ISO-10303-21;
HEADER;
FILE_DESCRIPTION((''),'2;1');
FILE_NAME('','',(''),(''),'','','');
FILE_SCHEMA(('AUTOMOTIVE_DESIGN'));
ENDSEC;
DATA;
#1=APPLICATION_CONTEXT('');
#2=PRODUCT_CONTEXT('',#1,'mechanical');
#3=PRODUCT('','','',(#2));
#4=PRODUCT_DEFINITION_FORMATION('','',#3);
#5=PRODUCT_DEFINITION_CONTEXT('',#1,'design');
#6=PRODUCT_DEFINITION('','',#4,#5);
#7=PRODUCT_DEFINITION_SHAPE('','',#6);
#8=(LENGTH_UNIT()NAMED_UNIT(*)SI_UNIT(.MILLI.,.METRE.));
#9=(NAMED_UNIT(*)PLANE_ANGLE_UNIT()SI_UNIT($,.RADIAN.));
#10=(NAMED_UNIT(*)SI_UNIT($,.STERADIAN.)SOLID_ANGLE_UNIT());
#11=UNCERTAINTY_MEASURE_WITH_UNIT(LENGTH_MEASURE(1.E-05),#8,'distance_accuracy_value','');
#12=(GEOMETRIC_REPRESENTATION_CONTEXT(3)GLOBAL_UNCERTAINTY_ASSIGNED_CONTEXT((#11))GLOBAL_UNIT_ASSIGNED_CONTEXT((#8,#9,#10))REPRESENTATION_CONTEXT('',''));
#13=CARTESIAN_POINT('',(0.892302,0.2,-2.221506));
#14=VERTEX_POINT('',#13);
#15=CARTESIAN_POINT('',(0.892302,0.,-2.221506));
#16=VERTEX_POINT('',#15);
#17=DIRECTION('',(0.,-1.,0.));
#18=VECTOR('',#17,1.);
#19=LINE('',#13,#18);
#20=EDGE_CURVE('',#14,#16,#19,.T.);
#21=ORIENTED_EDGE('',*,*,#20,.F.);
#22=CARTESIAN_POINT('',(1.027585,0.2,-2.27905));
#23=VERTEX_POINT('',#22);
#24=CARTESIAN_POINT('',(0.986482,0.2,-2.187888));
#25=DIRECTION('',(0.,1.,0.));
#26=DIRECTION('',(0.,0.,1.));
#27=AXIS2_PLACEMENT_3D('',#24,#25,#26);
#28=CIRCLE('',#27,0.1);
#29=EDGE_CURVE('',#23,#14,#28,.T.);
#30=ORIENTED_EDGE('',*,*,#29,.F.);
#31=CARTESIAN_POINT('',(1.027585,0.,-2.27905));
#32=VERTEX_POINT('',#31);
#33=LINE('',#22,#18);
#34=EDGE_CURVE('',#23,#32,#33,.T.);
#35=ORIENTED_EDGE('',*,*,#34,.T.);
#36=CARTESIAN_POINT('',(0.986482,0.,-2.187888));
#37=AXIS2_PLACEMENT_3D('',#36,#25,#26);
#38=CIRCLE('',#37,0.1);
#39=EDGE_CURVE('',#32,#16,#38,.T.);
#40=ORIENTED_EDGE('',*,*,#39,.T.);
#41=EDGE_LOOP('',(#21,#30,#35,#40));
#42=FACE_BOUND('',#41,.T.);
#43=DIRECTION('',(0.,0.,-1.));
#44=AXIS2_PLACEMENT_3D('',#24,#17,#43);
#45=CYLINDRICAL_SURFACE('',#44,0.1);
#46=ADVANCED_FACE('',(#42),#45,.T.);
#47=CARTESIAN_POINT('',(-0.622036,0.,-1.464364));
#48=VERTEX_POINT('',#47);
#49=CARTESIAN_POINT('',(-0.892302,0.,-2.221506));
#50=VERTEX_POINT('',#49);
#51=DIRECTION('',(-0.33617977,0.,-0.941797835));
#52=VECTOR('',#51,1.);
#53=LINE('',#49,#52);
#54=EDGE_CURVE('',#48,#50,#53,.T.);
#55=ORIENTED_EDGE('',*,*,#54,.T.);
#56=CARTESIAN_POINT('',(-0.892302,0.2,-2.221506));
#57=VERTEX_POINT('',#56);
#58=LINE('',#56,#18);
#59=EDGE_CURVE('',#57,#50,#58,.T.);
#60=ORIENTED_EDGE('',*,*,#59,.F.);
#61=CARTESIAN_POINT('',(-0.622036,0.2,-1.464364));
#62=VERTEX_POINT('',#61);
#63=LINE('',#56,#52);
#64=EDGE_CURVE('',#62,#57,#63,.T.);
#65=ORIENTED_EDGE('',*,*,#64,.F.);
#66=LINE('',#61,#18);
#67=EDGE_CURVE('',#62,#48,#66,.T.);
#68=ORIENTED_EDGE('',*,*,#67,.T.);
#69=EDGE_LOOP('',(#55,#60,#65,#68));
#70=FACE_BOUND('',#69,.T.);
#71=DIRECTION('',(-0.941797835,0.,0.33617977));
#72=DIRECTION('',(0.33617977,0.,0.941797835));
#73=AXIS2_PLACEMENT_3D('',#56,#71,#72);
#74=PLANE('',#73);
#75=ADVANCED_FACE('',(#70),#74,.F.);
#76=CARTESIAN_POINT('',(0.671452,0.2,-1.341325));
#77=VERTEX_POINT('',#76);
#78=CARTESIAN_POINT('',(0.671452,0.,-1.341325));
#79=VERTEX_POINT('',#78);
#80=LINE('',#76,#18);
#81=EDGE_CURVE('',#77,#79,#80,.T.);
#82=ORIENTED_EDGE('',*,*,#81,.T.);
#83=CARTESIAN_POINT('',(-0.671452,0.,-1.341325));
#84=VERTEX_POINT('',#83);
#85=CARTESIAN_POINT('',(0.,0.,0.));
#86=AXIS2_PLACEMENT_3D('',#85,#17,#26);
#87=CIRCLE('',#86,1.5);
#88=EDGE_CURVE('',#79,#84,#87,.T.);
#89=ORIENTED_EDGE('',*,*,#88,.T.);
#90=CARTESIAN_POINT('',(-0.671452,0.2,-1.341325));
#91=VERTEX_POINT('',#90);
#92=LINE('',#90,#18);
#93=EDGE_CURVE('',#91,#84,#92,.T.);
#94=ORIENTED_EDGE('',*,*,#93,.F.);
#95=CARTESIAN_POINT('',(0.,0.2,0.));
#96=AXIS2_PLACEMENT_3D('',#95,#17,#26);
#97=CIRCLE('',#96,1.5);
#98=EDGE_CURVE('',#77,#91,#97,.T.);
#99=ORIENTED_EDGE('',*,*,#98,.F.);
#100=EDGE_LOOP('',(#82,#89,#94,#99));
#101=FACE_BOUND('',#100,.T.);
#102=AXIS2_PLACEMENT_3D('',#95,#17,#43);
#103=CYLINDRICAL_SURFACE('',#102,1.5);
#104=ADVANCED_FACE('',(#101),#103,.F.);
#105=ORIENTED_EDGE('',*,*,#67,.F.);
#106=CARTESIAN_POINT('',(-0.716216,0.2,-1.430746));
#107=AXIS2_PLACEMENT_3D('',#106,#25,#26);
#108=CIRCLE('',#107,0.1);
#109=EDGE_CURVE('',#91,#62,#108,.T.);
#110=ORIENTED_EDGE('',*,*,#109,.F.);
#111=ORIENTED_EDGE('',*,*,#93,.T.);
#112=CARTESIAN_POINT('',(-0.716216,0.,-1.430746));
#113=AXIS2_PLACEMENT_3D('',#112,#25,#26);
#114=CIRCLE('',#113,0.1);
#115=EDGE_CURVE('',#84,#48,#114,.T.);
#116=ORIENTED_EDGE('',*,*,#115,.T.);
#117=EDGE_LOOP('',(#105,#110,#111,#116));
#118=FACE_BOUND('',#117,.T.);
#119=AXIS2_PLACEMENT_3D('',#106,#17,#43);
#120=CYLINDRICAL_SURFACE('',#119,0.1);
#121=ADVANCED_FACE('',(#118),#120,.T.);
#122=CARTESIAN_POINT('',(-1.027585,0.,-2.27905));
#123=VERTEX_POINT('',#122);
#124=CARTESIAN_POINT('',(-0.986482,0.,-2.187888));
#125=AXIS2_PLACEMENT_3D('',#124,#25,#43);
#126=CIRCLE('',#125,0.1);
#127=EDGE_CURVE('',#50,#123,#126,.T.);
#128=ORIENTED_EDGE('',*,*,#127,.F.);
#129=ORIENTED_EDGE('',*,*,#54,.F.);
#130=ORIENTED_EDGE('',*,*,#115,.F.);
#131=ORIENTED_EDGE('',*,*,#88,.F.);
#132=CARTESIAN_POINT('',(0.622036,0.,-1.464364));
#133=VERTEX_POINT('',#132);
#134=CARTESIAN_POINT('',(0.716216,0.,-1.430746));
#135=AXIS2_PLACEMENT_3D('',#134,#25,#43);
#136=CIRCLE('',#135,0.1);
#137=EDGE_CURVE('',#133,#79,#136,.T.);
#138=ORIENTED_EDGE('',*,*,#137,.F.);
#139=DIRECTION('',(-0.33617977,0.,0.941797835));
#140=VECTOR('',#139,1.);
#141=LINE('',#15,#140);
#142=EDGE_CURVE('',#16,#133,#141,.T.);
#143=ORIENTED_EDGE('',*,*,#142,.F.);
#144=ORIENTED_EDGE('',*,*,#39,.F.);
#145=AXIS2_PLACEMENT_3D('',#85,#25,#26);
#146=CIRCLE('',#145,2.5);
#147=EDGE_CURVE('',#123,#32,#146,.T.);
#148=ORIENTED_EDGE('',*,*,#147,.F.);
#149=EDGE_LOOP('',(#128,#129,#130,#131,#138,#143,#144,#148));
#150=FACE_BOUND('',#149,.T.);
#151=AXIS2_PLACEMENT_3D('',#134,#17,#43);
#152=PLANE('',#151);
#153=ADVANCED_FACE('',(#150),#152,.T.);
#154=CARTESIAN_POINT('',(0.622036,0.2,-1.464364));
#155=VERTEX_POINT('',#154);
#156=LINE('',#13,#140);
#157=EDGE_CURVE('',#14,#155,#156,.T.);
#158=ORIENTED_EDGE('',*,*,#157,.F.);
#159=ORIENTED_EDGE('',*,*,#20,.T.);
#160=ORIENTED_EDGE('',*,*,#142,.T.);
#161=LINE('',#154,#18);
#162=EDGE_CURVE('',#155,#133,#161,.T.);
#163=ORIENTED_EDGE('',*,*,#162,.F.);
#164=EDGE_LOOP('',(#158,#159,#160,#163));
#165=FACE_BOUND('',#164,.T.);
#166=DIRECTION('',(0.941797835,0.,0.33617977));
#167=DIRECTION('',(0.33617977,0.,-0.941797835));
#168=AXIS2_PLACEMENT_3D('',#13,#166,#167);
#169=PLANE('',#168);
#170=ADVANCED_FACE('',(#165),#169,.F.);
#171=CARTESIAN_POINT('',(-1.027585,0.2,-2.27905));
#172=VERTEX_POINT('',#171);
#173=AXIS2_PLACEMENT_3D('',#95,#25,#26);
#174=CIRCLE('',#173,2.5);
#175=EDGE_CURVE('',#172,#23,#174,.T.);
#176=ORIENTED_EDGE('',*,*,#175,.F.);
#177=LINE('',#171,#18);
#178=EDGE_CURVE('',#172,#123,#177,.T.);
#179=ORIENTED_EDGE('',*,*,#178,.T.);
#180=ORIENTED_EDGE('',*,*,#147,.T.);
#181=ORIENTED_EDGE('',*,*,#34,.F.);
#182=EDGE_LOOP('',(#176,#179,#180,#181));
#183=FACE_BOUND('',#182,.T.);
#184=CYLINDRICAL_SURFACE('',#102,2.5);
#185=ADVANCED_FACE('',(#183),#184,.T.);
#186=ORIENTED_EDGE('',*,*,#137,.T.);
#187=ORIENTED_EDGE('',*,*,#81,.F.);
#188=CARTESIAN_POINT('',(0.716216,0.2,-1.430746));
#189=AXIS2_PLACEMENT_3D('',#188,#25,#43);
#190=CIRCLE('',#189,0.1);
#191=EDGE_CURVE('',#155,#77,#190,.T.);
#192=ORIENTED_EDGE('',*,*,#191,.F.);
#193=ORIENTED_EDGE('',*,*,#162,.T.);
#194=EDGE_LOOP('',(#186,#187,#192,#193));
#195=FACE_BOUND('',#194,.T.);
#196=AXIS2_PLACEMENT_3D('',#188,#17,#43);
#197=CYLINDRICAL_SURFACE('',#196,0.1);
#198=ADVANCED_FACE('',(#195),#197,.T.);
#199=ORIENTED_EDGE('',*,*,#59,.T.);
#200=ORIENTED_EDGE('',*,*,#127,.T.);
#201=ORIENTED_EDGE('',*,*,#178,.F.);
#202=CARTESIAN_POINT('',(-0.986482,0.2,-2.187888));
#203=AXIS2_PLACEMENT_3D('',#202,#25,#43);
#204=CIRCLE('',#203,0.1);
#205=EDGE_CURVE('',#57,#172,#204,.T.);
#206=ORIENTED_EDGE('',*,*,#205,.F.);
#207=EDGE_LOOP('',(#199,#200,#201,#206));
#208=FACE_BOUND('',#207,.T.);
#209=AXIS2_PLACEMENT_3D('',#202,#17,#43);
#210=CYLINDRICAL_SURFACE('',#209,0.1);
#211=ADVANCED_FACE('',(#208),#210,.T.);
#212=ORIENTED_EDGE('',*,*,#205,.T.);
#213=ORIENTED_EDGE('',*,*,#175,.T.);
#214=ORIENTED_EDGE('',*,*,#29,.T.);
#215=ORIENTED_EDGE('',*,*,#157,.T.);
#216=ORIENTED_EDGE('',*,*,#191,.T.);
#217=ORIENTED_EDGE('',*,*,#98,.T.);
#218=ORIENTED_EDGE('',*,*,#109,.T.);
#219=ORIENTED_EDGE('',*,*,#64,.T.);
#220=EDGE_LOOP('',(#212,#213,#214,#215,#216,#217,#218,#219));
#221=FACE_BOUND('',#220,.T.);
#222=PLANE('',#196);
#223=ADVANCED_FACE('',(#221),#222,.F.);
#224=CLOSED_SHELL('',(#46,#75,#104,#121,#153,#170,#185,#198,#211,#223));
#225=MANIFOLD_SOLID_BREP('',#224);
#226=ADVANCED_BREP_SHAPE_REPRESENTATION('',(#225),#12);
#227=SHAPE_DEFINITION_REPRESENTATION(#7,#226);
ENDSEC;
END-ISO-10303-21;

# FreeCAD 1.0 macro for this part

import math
import FreeCAD as App
import Part
import Sketcher
Q = App.Units.Quantity

doc = App.newDocument("Part")
body = doc.addObject("PartDesign::Body", "Body")

# Sketch on XZ plane
sketch1 = body.newObject("Sketcher::SketchObject", "Sketch")
sketch1.AttachmentSupport = (doc.getObject("XZ_Plane"), [""])
sketch1.MapMode = "FlatFace"
sketch1.addGeometry(Part.LineSegment(App.Vector(-0.622036, -1.464364, 0), App.Vector(-0.892302, -2.221506, 0)), False)
sketch1.addGeometry(Part.ArcOfCircle(Part.Circle(App.Vector(-0.986482, -2.187888, 0), App.Vector(0, 0, 1), 0.1), math.radians(-114.269804), math.radians(-19.644295)), False)
sketch1.addGeometry(Part.ArcOfCircle(Part.Circle(App.Vector(0, 0, 0), App.Vector(0, 0, 1), 2.5), math.radians(-65.730195), math.radians(245.730195)), False)
sketch1.addGeometry(Part.ArcOfCircle(Part.Circle(App.Vector(0.986482, -2.187888, 0), App.Vector(0, 0, 1), 0.1), math.radians(-160.355705), math.radians(-65.730196)), False)
sketch1.addGeometry(Part.LineSegment(App.Vector(0.892302, -2.221506, 0), App.Vector(0.622036, -1.464364, 0)), False)
sketch1.addGeometry(Part.ArcOfCircle(Part.Circle(App.Vector(0.716216, -1.430746, 0), App.Vector(0, 0, 1), 0.1), math.radians(116.592041), math.radians(199.644295)), False)
sketch1.addGeometry(Part.ArcOfCircle(Part.Circle(App.Vector(0, 0, 0), App.Vector(0, 0, 1), 1.5), math.radians(-63.40796), math.radians(243.40796)), False)
sketch1.addGeometry(Part.ArcOfCircle(Part.Circle(App.Vector(-0.716216, -1.430746, 0), App.Vector(0, 0, 1), 0.1), math.radians(-19.644295), math.radians(63.407959)), False)
sketch1.addConstraint(Sketcher.Constraint("Tangent", 0, 2, 1, 2))
sketch1.addConstraint(Sketcher.Constraint("Tangent", 1, 1, 2, 2))
sketch1.addConstraint(Sketcher.Constraint("Tangent", 2, 1, 3, 2))
sketch1.addConstraint(Sketcher.Constraint("Tangent", 3, 1, 4, 1))
sketch1.addConstraint(Sketcher.Constraint("Tangent", 4, 2, 5, 2))
sketch1.addConstraint(Sketcher.Constraint("Tangent", 5, 1, 6, 1))
sketch1.addConstraint(Sketcher.Constraint("Tangent", 6, 2, 7, 2))
sketch1.addConstraint(Sketcher.Constraint("Tangent", 7, 1, 0, 1))
sketch1.addConstraint(Sketcher.Constraint("Coincident", 2, 3, -1, 1))
sketch1.addConstraint(Sketcher.Constraint("Coincident", 6, 3, -1, 1))
sketch1.addConstraint(Sketcher.Constraint("Equal", 1, 3))
sketch1.addConstraint(Sketcher.Constraint("Equal", 3, 5))
sketch1.addConstraint(Sketcher.Constraint("Equal", 5, 7))
sketch1.addConstraint(Sketcher.Constraint("Symmetric", 0, 2, 3, 1, -2))
sketch1.addConstraint(Sketcher.Constraint("Radius", 1, Q("0.1 mm")))
sketch1.addConstraint(Sketcher.Constraint("Radius", 2, Q("2.5 mm")))
sketch1.addConstraint(Sketcher.Constraint("Radius", 6, Q("1.5 mm")))
sketch1.addConstraint(Sketcher.Constraint("DistanceX", 0, 2, -1, 1, Q("0.892302 mm")))
sketch1.addConstraint(Sketcher.Constraint("DistanceX", 1, 1, 5, 3, Q("1.743801 mm")))
pad1 = body.newObject("PartDesign::Pad", "Pad")
pad1.Profile = sketch1
pad1.Length = 0.2
pad1.Reversed = True

doc.recompute()
